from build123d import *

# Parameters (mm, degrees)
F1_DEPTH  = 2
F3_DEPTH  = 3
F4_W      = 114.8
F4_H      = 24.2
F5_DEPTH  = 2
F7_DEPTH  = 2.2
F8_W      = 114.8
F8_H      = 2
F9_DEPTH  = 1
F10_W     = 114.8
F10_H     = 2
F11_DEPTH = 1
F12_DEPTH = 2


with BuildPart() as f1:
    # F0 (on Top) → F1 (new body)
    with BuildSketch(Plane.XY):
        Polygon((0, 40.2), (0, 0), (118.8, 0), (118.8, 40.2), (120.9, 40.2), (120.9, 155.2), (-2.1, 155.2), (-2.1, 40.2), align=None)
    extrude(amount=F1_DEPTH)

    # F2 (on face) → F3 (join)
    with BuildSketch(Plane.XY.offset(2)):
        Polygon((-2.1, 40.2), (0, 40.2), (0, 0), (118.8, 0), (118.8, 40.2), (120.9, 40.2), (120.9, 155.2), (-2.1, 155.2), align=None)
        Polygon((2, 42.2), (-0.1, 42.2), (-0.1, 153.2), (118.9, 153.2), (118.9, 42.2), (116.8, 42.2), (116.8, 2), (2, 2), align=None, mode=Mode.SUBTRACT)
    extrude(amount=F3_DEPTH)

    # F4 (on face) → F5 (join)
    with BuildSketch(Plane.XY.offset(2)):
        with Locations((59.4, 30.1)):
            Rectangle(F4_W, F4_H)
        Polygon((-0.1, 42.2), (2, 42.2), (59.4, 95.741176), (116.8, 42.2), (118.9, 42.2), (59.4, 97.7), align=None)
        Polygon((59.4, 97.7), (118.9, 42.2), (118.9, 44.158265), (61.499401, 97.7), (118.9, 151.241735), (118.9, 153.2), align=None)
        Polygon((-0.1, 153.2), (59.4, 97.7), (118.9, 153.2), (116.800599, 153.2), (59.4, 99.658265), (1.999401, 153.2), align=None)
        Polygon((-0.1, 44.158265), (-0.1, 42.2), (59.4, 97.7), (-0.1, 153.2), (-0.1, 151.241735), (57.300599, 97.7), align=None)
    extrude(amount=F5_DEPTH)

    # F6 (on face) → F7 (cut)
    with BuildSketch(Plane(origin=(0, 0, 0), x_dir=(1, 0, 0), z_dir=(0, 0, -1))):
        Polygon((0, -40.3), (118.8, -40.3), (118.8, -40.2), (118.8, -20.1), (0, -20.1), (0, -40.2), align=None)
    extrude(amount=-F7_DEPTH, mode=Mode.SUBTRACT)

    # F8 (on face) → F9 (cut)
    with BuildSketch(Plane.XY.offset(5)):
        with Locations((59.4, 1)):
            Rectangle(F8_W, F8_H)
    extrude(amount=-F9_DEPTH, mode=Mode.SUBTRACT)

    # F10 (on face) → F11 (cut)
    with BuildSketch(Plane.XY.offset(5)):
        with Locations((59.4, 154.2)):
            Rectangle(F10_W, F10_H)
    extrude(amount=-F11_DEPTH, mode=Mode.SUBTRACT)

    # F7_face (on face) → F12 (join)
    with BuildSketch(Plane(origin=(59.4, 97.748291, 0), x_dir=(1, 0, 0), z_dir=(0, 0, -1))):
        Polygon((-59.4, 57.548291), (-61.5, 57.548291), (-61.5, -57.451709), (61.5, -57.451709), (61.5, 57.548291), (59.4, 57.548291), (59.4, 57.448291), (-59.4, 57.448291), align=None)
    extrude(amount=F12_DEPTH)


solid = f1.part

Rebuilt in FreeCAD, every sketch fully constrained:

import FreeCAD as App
import Part
import Sketcher
from FreeCAD import Vector
Q = App.Units.Quantity

doc = App.newDocument("Part")
body = doc.addObject("PartDesign::Body", "Body")

sketch1 = body.newObject("Sketcher::SketchObject", "Sketch")
sketch1.AttachmentSupport = (doc.getObject("XY_Plane"), [""])
sketch1.MapMode = "FlatFace"
sketch1.addGeometry(Part.LineSegment(Vector(0, 40.2, 0), Vector(0, 0, 0)), False)
sketch1.addGeometry(Part.LineSegment(Vector(0, 0, 0), Vector(118.8, 0, 0)), False)
sketch1.addGeometry(Part.LineSegment(Vector(118.8, 0, 0), Vector(118.8, 40.2, 0)), False)
sketch1.addGeometry(Part.LineSegment(Vector(118.8, 40.2, 0), Vector(120.9, 40.2, 0)), False)
sketch1.addGeometry(Part.LineSegment(Vector(120.9, 40.2, 0), Vector(120.9, 155.2, 0)), False)
sketch1.addGeometry(Part.LineSegment(Vector(120.9, 155.2, 0), Vector(-2.1, 155.2, 0)), False)
sketch1.addGeometry(Part.LineSegment(Vector(-2.1, 155.2, 0), Vector(-2.1, 40.2, 0)), False)
sketch1.addGeometry(Part.LineSegment(Vector(-2.1, 40.2, 0), Vector(0, 40.2, 0)), False)
sketch1.addConstraint(Sketcher.Constraint("Coincident", 0, 2, 1, 1))
sketch1.addConstraint(Sketcher.Constraint("Coincident", 1, 2, 2, 1))
sketch1.addConstraint(Sketcher.Constraint("Coincident", 2, 2, 3, 1))
sketch1.addConstraint(Sketcher.Constraint("Coincident", 3, 2, 4, 1))
sketch1.addConstraint(Sketcher.Constraint("Coincident", 4, 2, 5, 1))
sketch1.addConstraint(Sketcher.Constraint("Coincident", 5, 2, 6, 1))
sketch1.addConstraint(Sketcher.Constraint("Coincident", 6, 2, 7, 1))
sketch1.addConstraint(Sketcher.Constraint("Coincident", 7, 2, 0, 1))
sketch1.addConstraint(Sketcher.Constraint("Vertical", 0))
sketch1.addConstraint(Sketcher.Constraint("Horizontal", 1))
sketch1.addConstraint(Sketcher.Constraint("Vertical", 2))
sketch1.addConstraint(Sketcher.Constraint("Horizontal", 3))
sketch1.addConstraint(Sketcher.Constraint("Vertical", 4))
sketch1.addConstraint(Sketcher.Constraint("Horizontal", 5))
sketch1.addConstraint(Sketcher.Constraint("Vertical", 6))
sketch1.addConstraint(Sketcher.Constraint("Horizontal", 7))
sketch1.addConstraint(Sketcher.Constraint("Coincident", 0, 2, -1, 1))
sketch1.addConstraint(Sketcher.Constraint("Horizontal", 3, 2, 6, 2))
sketch1.addConstraint(Sketcher.Constraint("Equal", 3, 7))
sketch1.addConstraint(Sketcher.Constraint("DistanceX", 5, 2, 5, 1, Q("123 mm")))
sketch1.addConstraint(Sketcher.Constraint("DistanceY", 4, 1, 4, 2, Q("115 mm")))
sketch1.addConstraint(Sketcher.Constraint("DistanceX", 1, 1, 1, 2, Q("118.8 mm")))
sketch1.addConstraint(Sketcher.Constraint("DistanceY", 0, 2, 0, 1, Q("40.2 mm")))
pad1 = body.newObject("PartDesign::Pad", "Pad")
pad1.Profile = sketch1
pad1.Length = 2

sketch2 = body.newObject("Sketcher::SketchObject", "Sketch001")
sketch2.AttachmentSupport = (doc.getObject("XY_Plane"), [""])
sketch2.MapMode = "FlatFace"
sketch2.AttachmentOffset = App.Placement(Vector(0, 0, 2), App.Rotation())
sketch2.addGeometry(Part.LineSegment(Vector(-2.1, 40.2, 0), Vector(0, 40.2, 0)), False)
sketch2.addGeometry(Part.LineSegment(Vector(0, 40.2, 0), Vector(0, 0, 0)), False)
sketch2.addGeometry(Part.LineSegment(Vector(0, 0, 0), Vector(118.8, 0, 0)), False)
sketch2.addGeometry(Part.LineSegment(Vector(118.8, 0, 0), Vector(118.8, 40.2, 0)), False)
sketch2.addGeometry(Part.LineSegment(Vector(118.8, 40.2, 0), Vector(120.9, 40.2, 0)), False)
sketch2.addGeometry(Part.LineSegment(Vector(120.9, 40.2, 0), Vector(120.9, 155.2, 0)), False)
sketch2.addGeometry(Part.LineSegment(Vector(120.9, 155.2, 0), Vector(-2.1, 155.2, 0)), False)
sketch2.addGeometry(Part.LineSegment(Vector(-2.1, 155.2, 0), Vector(-2.1, 40.2, 0)), False)
sketch2.addGeometry(Part.LineSegment(Vector(2, 2, 0), Vector(2, 42.2, 0)), False)
sketch2.addGeometry(Part.LineSegment(Vector(2, 42.2, 0), Vector(-0.1, 42.2, 0)), False)
sketch2.addGeometry(Part.LineSegment(Vector(-0.1, 42.2, 0), Vector(-0.1, 153.2, 0)), False)
sketch2.addGeometry(Part.LineSegment(Vector(-0.1, 153.2, 0), Vector(118.9, 153.2, 0)), False)
sketch2.addGeometry(Part.LineSegment(Vector(118.9, 153.2, 0), Vector(118.9, 42.2, 0)), False)
sketch2.addGeometry(Part.LineSegment(Vector(118.9, 42.2, 0), Vector(116.8, 42.2, 0)), False)
sketch2.addGeometry(Part.LineSegment(Vector(116.8, 42.2, 0), Vector(116.8, 2, 0)), False)
sketch2.addGeometry(Part.LineSegment(Vector(116.8, 2, 0), Vector(2, 2, 0)), False)
sketch2.addConstraint(Sketcher.Constraint("Coincident", 0, 2, 1, 1))
sketch2.addConstraint(Sketcher.Constraint("Coincident", 1, 2, 2, 1))
sketch2.addConstraint(Sketcher.Constraint("Coincident", 2, 2, 3, 1))
sketch2.addConstraint(Sketcher.Constraint("Coincident", 3, 2, 4, 1))
sketch2.addConstraint(Sketcher.Constraint("Coincident", 4, 2, 5, 1))
sketch2.addConstraint(Sketcher.Constraint("Coincident", 5, 2, 6, 1))
sketch2.addConstraint(Sketcher.Constraint("Coincident", 6, 2, 7, 1))
sketch2.addConstraint(Sketcher.Constraint("Coincident", 7, 2, 0, 1))
sketch2.addConstraint(Sketcher.Constraint("Coincident", 8, 2, 9, 1))
sketch2.addConstraint(Sketcher.Constraint("Coincident", 9, 2, 10, 1))
sketch2.addConstraint(Sketcher.Constraint("Coincident", 10, 2, 11, 1))
sketch2.addConstraint(Sketcher.Constraint("Coincident", 11, 2, 12, 1))
sketch2.addConstraint(Sketcher.Constraint("Coincident", 12, 2, 13, 1))
sketch2.addConstraint(Sketcher.Constraint("Coincident", 13, 2, 14, 1))
sketch2.addConstraint(Sketcher.Constraint("Coincident", 14, 2, 15, 1))
sketch2.addConstraint(Sketcher.Constraint("Coincident", 15, 2, 8, 1))
sketch2.addConstraint(Sketcher.Constraint("Horizontal", 0))
sketch2.addConstraint(Sketcher.Constraint("Vertical", 1))
sketch2.addConstraint(Sketcher.Constraint("Horizontal", 2))
sketch2.addConstraint(Sketcher.Constraint("Vertical", 3))
sketch2.addConstraint(Sketcher.Constraint("Horizontal", 4))
sketch2.addConstraint(Sketcher.Constraint("Vertical", 5))
sketch2.addConstraint(Sketcher.Constraint("Horizontal", 6))
sketch2.addConstraint(Sketcher.Constraint("Vertical", 7))
sketch2.addConstraint(Sketcher.Constraint("Vertical", 8))
sketch2.addConstraint(Sketcher.Constraint("Horizontal", 9))
sketch2.addConstraint(Sketcher.Constraint("Vertical", 10))
sketch2.addConstraint(Sketcher.Constraint("Horizontal", 11))
sketch2.addConstraint(Sketcher.Constraint("Vertical", 12))
sketch2.addConstraint(Sketcher.Constraint("Horizontal", 13))
sketch2.addConstraint(Sketcher.Constraint("Vertical", 14))
sketch2.addConstraint(Sketcher.Constraint("Horizontal", 15))
sketch2.addConstraint(Sketcher.Constraint("Coincident", 1, 2, -1, 1))
sketch2.addConstraint(Sketcher.Constraint("Horizontal", 0, 2, 3, 2))
sketch2.addConstraint(Sketcher.Constraint("Horizontal", 9, 2, 12, 2))
sketch2.addConstraint(Sketcher.Constraint("Equal", 0, 4))
sketch2.addConstraint(Sketcher.Constraint("Equal", 4, 9))
sketch2.addConstraint(Sketcher.Constraint("Equal", 9, 13))
sketch2.addConstraint(Sketcher.Constraint("Equal", 3, 8))
sketch2.addConstraint(Sketcher.Constraint("DistanceX", 6, 2, 6, 1, Q("123 mm")))
sketch2.addConstraint(Sketcher.Constraint("DistanceX", 11, 1, 11, 2, Q("119 mm")))
sketch2.addConstraint(Sketcher.Constraint("DistanceY", 5, 1, 5, 2, Q("115 mm")))
sketch2.addConstraint(Sketcher.Constraint("DistanceY", 10, 1, 10, 2, Q("111 mm")))
sketch2.addConstraint(Sketcher.Constraint("DistanceX", 0, 1, 0, 2, Q("2.1 mm")))
sketch2.addConstraint(Sketcher.Constraint("DistanceY", 1, 2, 1, 1, Q("40.2 mm")))
sketch2.addConstraint(Sketcher.Constraint("DistanceX", -1, 1, 8, 2, Q("2 mm")))
sketch2.addConstraint(Sketcher.Constraint("DistanceY", -1, 1, 14, 2, Q("2 mm")))
pad2 = body.newObject("PartDesign::Pad", "Pad001")
pad2.Profile = sketch2
pad2.Length = 3

sketch3 = body.newObject("Sketcher::SketchObject", "Sketch002")
sketch3.AttachmentSupport = (doc.getObject("XY_Plane"), [""])
sketch3.MapMode = "FlatFace"
sketch3.AttachmentOffset = App.Placement(Vector(0, 0, 2), App.Rotation())
sketch3.addGeometry(Part.LineSegment(Vector(2, 42.2, 0), Vector(2, 18, 0)), False)
sketch3.addGeometry(Part.LineSegment(Vector(2, 18, 0), Vector(116.8, 18, 0)), False)
sketch3.addGeometry(Part.LineSegment(Vector(116.8, 18, 0), Vector(116.8, 42.2, 0)), False)
sketch3.addGeometry(Part.LineSegment(Vector(116.8, 42.2, 0), Vector(2, 42.2, 0)), False)
sketch3.addGeometry(Part.LineSegment(Vector(-0.1, 42.2, 0), Vector(2, 42.2, 0)), False)
sketch3.addGeometry(Part.LineSegment(Vector(2, 42.2, 0), Vector(59.4, 95.741176, 0)), False)
sketch3.addGeometry(Part.LineSegment(Vector(59.4, 95.741176, 0), Vector(116.8, 42.2, 0)), False)
sketch3.addGeometry(Part.LineSegment(Vector(116.8, 42.2, 0), Vector(118.9, 42.2, 0)), False)
sketch3.addGeometry(Part.LineSegment(Vector(118.9, 42.2, 0), Vector(118.9, 44.158265, 0)), False)
sketch3.addGeometry(Part.LineSegment(Vector(118.9, 44.158265, 0), Vector(61.499401, 97.7, 0)), False)
sketch3.addGeometry(Part.LineSegment(Vector(61.499401, 97.7, 0), Vector(118.9, 151.241735, 0)), False)
sketch3.addGeometry(Part.LineSegment(Vector(118.9, 151.241735, 0), Vector(118.9, 153.2, 0)), False)
sketch3.addGeometry(Part.LineSegment(Vector(118.9, 153.2, 0), Vector(116.800599, 153.2, 0)), False)
sketch3.addGeometry(Part.LineSegment(Vector(116.800599, 153.2, 0), Vector(59.4, 99.658265, 0)), False)
sketch3.addGeometry(Part.LineSegment(Vector(59.4, 99.658265, 0), Vector(1.999401, 153.2, 0)), False)
sketch3.addGeometry(Part.LineSegment(Vector(1.999401, 153.2, 0), Vector(-0.1, 153.2, 0)), False)
sketch3.addGeometry(Part.LineSegment(Vector(-0.1, 153.2, 0), Vector(-0.1, 151.241735, 0)), False)
sketch3.addGeometry(Part.LineSegment(Vector(-0.1, 151.241735, 0), Vector(57.300599, 97.7, 0)), False)
sketch3.addGeometry(Part.LineSegment(Vector(57.300599, 97.7, 0), Vector(-0.1, 44.158265, 0)), False)
sketch3.addGeometry(Part.LineSegment(Vector(-0.1, 44.158265, 0), Vector(-0.1, 42.2, 0)), False)
sketch3.addConstraint(Sketcher.Constraint("Coincident", 0, 2, 1, 1))
sketch3.addConstraint(Sketcher.Constraint("Coincident", 1, 2, 2, 1))
sketch3.addConstraint(Sketcher.Constraint("Coincident", 2, 2, 3, 1))
sketch3.addConstraint(Sketcher.Constraint("Coincident", 3, 2, 0, 1))
sketch3.addConstraint(Sketcher.Constraint("Coincident", 4, 2, 5, 1))
sketch3.addConstraint(Sketcher.Constraint("Coincident", 5, 2, 6, 1))
sketch3.addConstraint(Sketcher.Constraint("Coincident", 6, 2, 7, 1))
sketch3.addConstraint(Sketcher.Constraint("Coincident", 7, 2, 8, 1))
sketch3.addConstraint(Sketcher.Constraint("Coincident", 8, 2, 9, 1))
sketch3.addConstraint(Sketcher.Constraint("Coincident", 9, 2, 10, 1))
sketch3.addConstraint(Sketcher.Constraint("Coincident", 10, 2, 11, 1))
sketch3.addConstraint(Sketcher.Constraint("Coincident", 11, 2, 12, 1))
sketch3.addConstraint(Sketcher.Constraint("Coincident", 12, 2, 13, 1))
sketch3.addConstraint(Sketcher.Constraint("Coincident", 13, 2, 14, 1))
sketch3.addConstraint(Sketcher.Constraint("Coincident", 14, 2, 15, 1))
sketch3.addConstraint(Sketcher.Constraint("Coincident", 15, 2, 16, 1))
sketch3.addConstraint(Sketcher.Constraint("Coincident", 16, 2, 17, 1))
sketch3.addConstraint(Sketcher.Constraint("Coincident", 17, 2, 18, 1))
sketch3.addConstraint(Sketcher.Constraint("Coincident", 18, 2, 19, 1))
sketch3.addConstraint(Sketcher.Constraint("Coincident", 19, 2, 4, 1))
sketch3.addConstraint(Sketcher.Constraint("Vertical", 0))
sketch3.addConstraint(Sketcher.Constraint("Horizontal", 1))
sketch3.addConstraint(Sketcher.Constraint("Vertical", 2))
sketch3.addConstraint(Sketcher.Constraint("Horizontal", 3))
sketch3.addConstraint(Sketcher.Constraint("Horizontal", 4))
sketch3.addConstraint(Sketcher.Constraint("Horizontal", 7))
sketch3.addConstraint(Sketcher.Constraint("Vertical", 8))
sketch3.addConstraint(Sketcher.Constraint("Vertical", 11))
sketch3.addConstraint(Sketcher.Constraint("Horizontal", 12))
sketch3.addConstraint(Sketcher.Constraint("Horizontal", 15))
sketch3.addConstraint(Sketcher.Constraint("Vertical", 16))
sketch3.addConstraint(Sketcher.Constraint("Vertical", 19))
sketch3.addConstraint(Sketcher.Constraint("Coincident", 4, 2, 3, 2))
sketch3.addConstraint(Sketcher.Constraint("Coincident", 6, 2, 2, 2))
sketch3.addConstraint(Sketcher.Constraint("Parallel", 6, 9))
sketch3.addConstraint(Sketcher.Constraint("Parallel", 5, 10))
sketch3.addConstraint(Sketcher.Constraint("Parallel", 10, 13))
sketch3.addConstraint(Sketcher.Constraint("Parallel", 9, 14))
sketch3.addConstraint(Sketcher.Constraint("Parallel", 14, 17))
sketch3.addConstraint(Sketcher.Constraint("Parallel", 13, 18))
sketch3.addConstraint(Sketcher.Constraint("Horizontal", 12, 2, 14, 2))
sketch3.addConstraint(Sketcher.Constraint("Horizontal", 10, 2, 16, 2))
sketch3.addConstraint(Sketcher.Constraint("Horizontal", 9, 2, 17, 2))
sketch3.addConstraint(Sketcher.Constraint("Horizontal", 8, 2, 18, 2))
sketch3.addConstraint(Sketcher.Constraint("Vertical", 8, 2, 10, 2))
sketch3.addConstraint(Sketcher.Constraint("Vertical", 5, 2, 13, 2))
sketch3.addConstraint(Sketcher.Constraint("Vertical", 16, 2, 18, 2))
sketch3.addConstraint(Sketcher.Constraint("Equal", 4, 7))
sketch3.addConstraint(Sketcher.Constraint("Equal", 8, 11))
sketch3.addConstraint(Sketcher.Constraint("Equal", 10, 13))
sketch3.addConstraint(Sketcher.Constraint("DistanceX", 1, 1, 1, 2, Q("114.8 mm")))
sketch3.addConstraint(Sketcher.Constraint("DistanceX", 4, 1, 4, 2, Q("2.1 mm")))
sketch3.addConstraint(Sketcher.Constraint("DistanceY", 0, 2, 0, 1, Q("24.2 mm")))
sketch3.addConstraint(Sketcher.Constraint("DistanceX", -1, 1, 0, 2, Q("2 mm")))
sketch3.addConstraint(Sketcher.Constraint("DistanceY", -1, 1, 0, 2, Q("18 mm")))
sketch3.addConstraint(Sketcher.Constraint("DistanceY", 7, 2, 11, 2, Q("111 mm")))
sketch3.addConstraint(Sketcher.Constraint("DistanceX", 12, 2, 12, 1, Q("2.099401 mm")))
sketch3.addConstraint(Sketcher.Constraint("DistanceY", 8, 1, 8, 2, Q("1.958265 mm")))
pad3 = body.newObject("PartDesign::Pad", "Pad002")
pad3.Profile = sketch3
pad3.Length = 2

sketch4 = body.newObject("Sketcher::SketchObject", "Sketch003")
sketch4.AttachmentSupport = (doc.getObject("XY_Plane"), [""])
sketch4.MapMode = "FlatFace"
sketch4.addGeometry(Part.LineSegment(Vector(0, 40.3, 0), Vector(118.8, 40.3, 0)), False)
sketch4.addGeometry(Part.LineSegment(Vector(118.8, 40.3, 0), Vector(118.8, 20.1, 0)), False)
sketch4.addGeometry(Part.LineSegment(Vector(118.8, 20.1, 0), Vector(0, 20.1, 0)), False)
sketch4.addGeometry(Part.LineSegment(Vector(0, 20.1, 0), Vector(0, 40.3, 0)), False)
sketch4.addConstraint(Sketcher.Constraint("Coincident", 0, 2, 1, 1))
sketch4.addConstraint(Sketcher.Constraint("Coincident", 1, 2, 2, 1))
sketch4.addConstraint(Sketcher.Constraint("Coincident", 2, 2, 3, 1))
sketch4.addConstraint(Sketcher.Constraint("Coincident", 3, 2, 0, 1))
sketch4.addConstraint(Sketcher.Constraint("Horizontal", 0))
sketch4.addConstraint(Sketcher.Constraint("Vertical", 1))
sketch4.addConstraint(Sketcher.Constraint("Horizontal", 2))
sketch4.addConstraint(Sketcher.Constraint("Vertical", 3))
sketch4.addConstraint(Sketcher.Constraint("PointOnObject", 2, 2, -2))
sketch4.addConstraint(Sketcher.Constraint("DistanceX", 0, 1, 0, 2, Q("118.8 mm")))
sketch4.addConstraint(Sketcher.Constraint("DistanceY", 1, 2, 1, 1, Q("20.2 mm")))
sketch4.addConstraint(Sketcher.Constraint("DistanceY", -1, 1, 0, 2, Q("40.3 mm")))
pocket1 = body.newObject("PartDesign::Pocket", "Pocket")
pocket1.Profile = sketch4
pocket1.Length = 2.2
pocket1.Reversed = True

sketch5 = body.newObject("Sketcher::SketchObject", "Sketch004")
sketch5.AttachmentSupport = (doc.getObject("XY_Plane"), [""])
sketch5.MapMode = "FlatFace"
sketch5.AttachmentOffset = App.Placement(Vector(0, 0, 5), App.Rotation())
sketch5.addGeometry(Part.LineSegment(Vector(2, 2, 0), Vector(2, 0, 0)), False)
sketch5.addGeometry(Part.LineSegment(Vector(2, 0, 0), Vector(116.8, 0, 0)), False)
sketch5.addGeometry(Part.LineSegment(Vector(116.8, 0, 0), Vector(116.8, 2, 0)), False)
sketch5.addGeometry(Part.LineSegment(Vector(116.8, 2, 0), Vector(2, 2, 0)), False)
sketch5.addConstraint(Sketcher.Constraint("Coincident", 0, 2, 1, 1))
sketch5.addConstraint(Sketcher.Constraint("Coincident", 1, 2, 2, 1))
sketch5.addConstraint(Sketcher.Constraint("Coincident", 2, 2, 3, 1))
sketch5.addConstraint(Sketcher.Constraint("Coincident", 3, 2, 0, 1))
sketch5.addConstraint(Sketcher.Constraint("Vertical", 0))
sketch5.addConstraint(Sketcher.Constraint("Horizontal", 1))
sketch5.addConstraint(Sketcher.Constraint("Vertical", 2))
sketch5.addConstraint(Sketcher.Constraint("Horizontal", 3))
sketch5.addConstraint(Sketcher.Constraint("PointOnObject", 0, 2, -1))
sketch5.addConstraint(Sketcher.Constraint("DistanceY", 0, 2, 0, 1, Q("2 mm")))
sketch5.addConstraint(Sketcher.Constraint("DistanceX", 1, 1, 1, 2, Q("114.8 mm")))
sketch5.addConstraint(Sketcher.Constraint("DistanceX", -1, 1, 0, 2, Q("2 mm")))
pocket2 = body.newObject("PartDesign::Pocket", "Pocket001")
pocket2.Profile = sketch5
pocket2.Length = 1

sketch6 = body.newObject("Sketcher::SketchObject", "Sketch005")
sketch6.AttachmentSupport = (doc.getObject("XY_Plane"), [""])
sketch6.MapMode = "FlatFace"
sketch6.AttachmentOffset = App.Placement(Vector(0, 0, 5), App.Rotation())
sketch6.addGeometry(Part.LineSegment(Vector(2, 155.2, 0), Vector(2, 153.2, 0)), False)
sketch6.addGeometry(Part.LineSegment(Vector(2, 153.2, 0), Vector(116.8, 153.2, 0)), False)
sketch6.addGeometry(Part.LineSegment(Vector(116.8, 153.2, 0), Vector(116.8, 155.2, 0)), False)
sketch6.addGeometry(Part.LineSegment(Vector(116.8, 155.2, 0), Vector(2, 155.2, 0)), False)
sketch6.addConstraint(Sketcher.Constraint("Coincident", 0, 2, 1, 1))
sketch6.addConstraint(Sketcher.Constraint("Coincident", 1, 2, 2, 1))
sketch6.addConstraint(Sketcher.Constraint("Coincident", 2, 2, 3, 1))
sketch6.addConstraint(Sketcher.Constraint("Coincident", 3, 2, 0, 1))
sketch6.addConstraint(Sketcher.Constraint("Vertical", 0))
sketch6.addConstraint(Sketcher.Constraint("Horizontal", 1))
sketch6.addConstraint(Sketcher.Constraint("Vertical", 2))
sketch6.addConstraint(Sketcher.Constraint("Horizontal", 3))
sketch6.addConstraint(Sketcher.Constraint("DistanceY", 0, 2, 0, 1, Q("2 mm")))
sketch6.addConstraint(Sketcher.Constraint("DistanceX", 1, 1, 1, 2, Q("114.8 mm")))
sketch6.addConstraint(Sketcher.Constraint("DistanceX", -1, 1, 0, 2, Q("2 mm")))
sketch6.addConstraint(Sketcher.Constraint("DistanceY", -1, 1, 0, 2, Q("153.2 mm")))
pocket3 = body.newObject("PartDesign::Pocket", "Pocket002")
pocket3.Profile = sketch6
pocket3.Length = 1

sketch7 = body.newObject("Sketcher::SketchObject", "Sketch006")
sketch7.AttachmentSupport = (doc.getObject("XY_Plane"), [""])
sketch7.MapMode = "FlatFace"
sketch7.addGeometry(Part.LineSegment(Vector(0, 40.2, 0), Vector(-2.1, 40.2, 0)), False)
sketch7.addGeometry(Part.LineSegment(Vector(-2.1, 40.2, 0), Vector(-2.1, 155.2, 0)), False)
sketch7.addGeometry(Part.LineSegment(Vector(-2.1, 155.2, 0), Vector(120.9, 155.2, 0)), False)
sketch7.addGeometry(Part.LineSegment(Vector(120.9, 155.2, 0), Vector(120.9, 40.2, 0)), False)
sketch7.addGeometry(Part.LineSegment(Vector(120.9, 40.2, 0), Vector(118.8, 40.2, 0)), False)
sketch7.addGeometry(Part.LineSegment(Vector(118.8, 40.2, 0), Vector(118.8, 40.3, 0)), False)
sketch7.addGeometry(Part.LineSegment(Vector(118.8, 40.3, 0), Vector(0, 40.3, 0)), False)
sketch7.addGeometry(Part.LineSegment(Vector(0, 40.3, 0), Vector(0, 40.2, 0)), False)
sketch7.addConstraint(Sketcher.Constraint("Coincident", 0, 2, 1, 1))
sketch7.addConstraint(Sketcher.Constraint("Coincident", 1, 2, 2, 1))
sketch7.addConstraint(Sketcher.Constraint("Coincident", 2, 2, 3, 1))
sketch7.addConstraint(Sketcher.Constraint("Coincident", 3, 2, 4, 1))
sketch7.addConstraint(Sketcher.Constraint("Coincident", 4, 2, 5, 1))
sketch7.addConstraint(Sketcher.Constraint("Coincident", 5, 2, 6, 1))
sketch7.addConstraint(Sketcher.Constraint("Coincident", 6, 2, 7, 1))
sketch7.addConstraint(Sketcher.Constraint("Coincident", 7, 2, 0, 1))
sketch7.addConstraint(Sketcher.Constraint("Horizontal", 0))
sketch7.addConstraint(Sketcher.Constraint("Vertical", 1))
sketch7.addConstraint(Sketcher.Constraint("Horizontal", 2))
sketch7.addConstraint(Sketcher.Constraint("Vertical", 3))
sketch7.addConstraint(Sketcher.Constraint("Horizontal", 4))
sketch7.addConstraint(Sketcher.Constraint("Vertical", 5))
sketch7.addConstraint(Sketcher.Constraint("Horizontal", 6))
sketch7.addConstraint(Sketcher.Constraint("Vertical", 7))
sketch7.addConstraint(Sketcher.Constraint("PointOnObject", 6, 2, -2))
sketch7.addConstraint(Sketcher.Constraint("Horizontal", 0, 2, 3, 2))
sketch7.addConstraint(Sketcher.Constraint("Equal", 0, 4))
sketch7.addConstraint(Sketcher.Constraint("DistanceX", 2, 1, 2, 2, Q("123 mm")))
sketch7.addConstraint(Sketcher.Constraint("DistanceY", 1, 1, 1, 2, Q("115 mm")))
sketch7.addConstraint(Sketcher.Constraint("DistanceX", 0, 2, 0, 1, Q("2.1 mm")))
sketch7.addConstraint(Sketcher.Constraint("DistanceY", 5, 1, 5, 2, Q("0.1 mm")))
sketch7.addConstraint(Sketcher.Constraint("DistanceY", -1, 1, 0, 2, Q("40.2 mm")))
pad4 = body.newObject("PartDesign::Pad", "Pad003")
pad4.Profile = sketch7
pad4.Length = 2
pad4.Reversed = True

doc.recompute()
